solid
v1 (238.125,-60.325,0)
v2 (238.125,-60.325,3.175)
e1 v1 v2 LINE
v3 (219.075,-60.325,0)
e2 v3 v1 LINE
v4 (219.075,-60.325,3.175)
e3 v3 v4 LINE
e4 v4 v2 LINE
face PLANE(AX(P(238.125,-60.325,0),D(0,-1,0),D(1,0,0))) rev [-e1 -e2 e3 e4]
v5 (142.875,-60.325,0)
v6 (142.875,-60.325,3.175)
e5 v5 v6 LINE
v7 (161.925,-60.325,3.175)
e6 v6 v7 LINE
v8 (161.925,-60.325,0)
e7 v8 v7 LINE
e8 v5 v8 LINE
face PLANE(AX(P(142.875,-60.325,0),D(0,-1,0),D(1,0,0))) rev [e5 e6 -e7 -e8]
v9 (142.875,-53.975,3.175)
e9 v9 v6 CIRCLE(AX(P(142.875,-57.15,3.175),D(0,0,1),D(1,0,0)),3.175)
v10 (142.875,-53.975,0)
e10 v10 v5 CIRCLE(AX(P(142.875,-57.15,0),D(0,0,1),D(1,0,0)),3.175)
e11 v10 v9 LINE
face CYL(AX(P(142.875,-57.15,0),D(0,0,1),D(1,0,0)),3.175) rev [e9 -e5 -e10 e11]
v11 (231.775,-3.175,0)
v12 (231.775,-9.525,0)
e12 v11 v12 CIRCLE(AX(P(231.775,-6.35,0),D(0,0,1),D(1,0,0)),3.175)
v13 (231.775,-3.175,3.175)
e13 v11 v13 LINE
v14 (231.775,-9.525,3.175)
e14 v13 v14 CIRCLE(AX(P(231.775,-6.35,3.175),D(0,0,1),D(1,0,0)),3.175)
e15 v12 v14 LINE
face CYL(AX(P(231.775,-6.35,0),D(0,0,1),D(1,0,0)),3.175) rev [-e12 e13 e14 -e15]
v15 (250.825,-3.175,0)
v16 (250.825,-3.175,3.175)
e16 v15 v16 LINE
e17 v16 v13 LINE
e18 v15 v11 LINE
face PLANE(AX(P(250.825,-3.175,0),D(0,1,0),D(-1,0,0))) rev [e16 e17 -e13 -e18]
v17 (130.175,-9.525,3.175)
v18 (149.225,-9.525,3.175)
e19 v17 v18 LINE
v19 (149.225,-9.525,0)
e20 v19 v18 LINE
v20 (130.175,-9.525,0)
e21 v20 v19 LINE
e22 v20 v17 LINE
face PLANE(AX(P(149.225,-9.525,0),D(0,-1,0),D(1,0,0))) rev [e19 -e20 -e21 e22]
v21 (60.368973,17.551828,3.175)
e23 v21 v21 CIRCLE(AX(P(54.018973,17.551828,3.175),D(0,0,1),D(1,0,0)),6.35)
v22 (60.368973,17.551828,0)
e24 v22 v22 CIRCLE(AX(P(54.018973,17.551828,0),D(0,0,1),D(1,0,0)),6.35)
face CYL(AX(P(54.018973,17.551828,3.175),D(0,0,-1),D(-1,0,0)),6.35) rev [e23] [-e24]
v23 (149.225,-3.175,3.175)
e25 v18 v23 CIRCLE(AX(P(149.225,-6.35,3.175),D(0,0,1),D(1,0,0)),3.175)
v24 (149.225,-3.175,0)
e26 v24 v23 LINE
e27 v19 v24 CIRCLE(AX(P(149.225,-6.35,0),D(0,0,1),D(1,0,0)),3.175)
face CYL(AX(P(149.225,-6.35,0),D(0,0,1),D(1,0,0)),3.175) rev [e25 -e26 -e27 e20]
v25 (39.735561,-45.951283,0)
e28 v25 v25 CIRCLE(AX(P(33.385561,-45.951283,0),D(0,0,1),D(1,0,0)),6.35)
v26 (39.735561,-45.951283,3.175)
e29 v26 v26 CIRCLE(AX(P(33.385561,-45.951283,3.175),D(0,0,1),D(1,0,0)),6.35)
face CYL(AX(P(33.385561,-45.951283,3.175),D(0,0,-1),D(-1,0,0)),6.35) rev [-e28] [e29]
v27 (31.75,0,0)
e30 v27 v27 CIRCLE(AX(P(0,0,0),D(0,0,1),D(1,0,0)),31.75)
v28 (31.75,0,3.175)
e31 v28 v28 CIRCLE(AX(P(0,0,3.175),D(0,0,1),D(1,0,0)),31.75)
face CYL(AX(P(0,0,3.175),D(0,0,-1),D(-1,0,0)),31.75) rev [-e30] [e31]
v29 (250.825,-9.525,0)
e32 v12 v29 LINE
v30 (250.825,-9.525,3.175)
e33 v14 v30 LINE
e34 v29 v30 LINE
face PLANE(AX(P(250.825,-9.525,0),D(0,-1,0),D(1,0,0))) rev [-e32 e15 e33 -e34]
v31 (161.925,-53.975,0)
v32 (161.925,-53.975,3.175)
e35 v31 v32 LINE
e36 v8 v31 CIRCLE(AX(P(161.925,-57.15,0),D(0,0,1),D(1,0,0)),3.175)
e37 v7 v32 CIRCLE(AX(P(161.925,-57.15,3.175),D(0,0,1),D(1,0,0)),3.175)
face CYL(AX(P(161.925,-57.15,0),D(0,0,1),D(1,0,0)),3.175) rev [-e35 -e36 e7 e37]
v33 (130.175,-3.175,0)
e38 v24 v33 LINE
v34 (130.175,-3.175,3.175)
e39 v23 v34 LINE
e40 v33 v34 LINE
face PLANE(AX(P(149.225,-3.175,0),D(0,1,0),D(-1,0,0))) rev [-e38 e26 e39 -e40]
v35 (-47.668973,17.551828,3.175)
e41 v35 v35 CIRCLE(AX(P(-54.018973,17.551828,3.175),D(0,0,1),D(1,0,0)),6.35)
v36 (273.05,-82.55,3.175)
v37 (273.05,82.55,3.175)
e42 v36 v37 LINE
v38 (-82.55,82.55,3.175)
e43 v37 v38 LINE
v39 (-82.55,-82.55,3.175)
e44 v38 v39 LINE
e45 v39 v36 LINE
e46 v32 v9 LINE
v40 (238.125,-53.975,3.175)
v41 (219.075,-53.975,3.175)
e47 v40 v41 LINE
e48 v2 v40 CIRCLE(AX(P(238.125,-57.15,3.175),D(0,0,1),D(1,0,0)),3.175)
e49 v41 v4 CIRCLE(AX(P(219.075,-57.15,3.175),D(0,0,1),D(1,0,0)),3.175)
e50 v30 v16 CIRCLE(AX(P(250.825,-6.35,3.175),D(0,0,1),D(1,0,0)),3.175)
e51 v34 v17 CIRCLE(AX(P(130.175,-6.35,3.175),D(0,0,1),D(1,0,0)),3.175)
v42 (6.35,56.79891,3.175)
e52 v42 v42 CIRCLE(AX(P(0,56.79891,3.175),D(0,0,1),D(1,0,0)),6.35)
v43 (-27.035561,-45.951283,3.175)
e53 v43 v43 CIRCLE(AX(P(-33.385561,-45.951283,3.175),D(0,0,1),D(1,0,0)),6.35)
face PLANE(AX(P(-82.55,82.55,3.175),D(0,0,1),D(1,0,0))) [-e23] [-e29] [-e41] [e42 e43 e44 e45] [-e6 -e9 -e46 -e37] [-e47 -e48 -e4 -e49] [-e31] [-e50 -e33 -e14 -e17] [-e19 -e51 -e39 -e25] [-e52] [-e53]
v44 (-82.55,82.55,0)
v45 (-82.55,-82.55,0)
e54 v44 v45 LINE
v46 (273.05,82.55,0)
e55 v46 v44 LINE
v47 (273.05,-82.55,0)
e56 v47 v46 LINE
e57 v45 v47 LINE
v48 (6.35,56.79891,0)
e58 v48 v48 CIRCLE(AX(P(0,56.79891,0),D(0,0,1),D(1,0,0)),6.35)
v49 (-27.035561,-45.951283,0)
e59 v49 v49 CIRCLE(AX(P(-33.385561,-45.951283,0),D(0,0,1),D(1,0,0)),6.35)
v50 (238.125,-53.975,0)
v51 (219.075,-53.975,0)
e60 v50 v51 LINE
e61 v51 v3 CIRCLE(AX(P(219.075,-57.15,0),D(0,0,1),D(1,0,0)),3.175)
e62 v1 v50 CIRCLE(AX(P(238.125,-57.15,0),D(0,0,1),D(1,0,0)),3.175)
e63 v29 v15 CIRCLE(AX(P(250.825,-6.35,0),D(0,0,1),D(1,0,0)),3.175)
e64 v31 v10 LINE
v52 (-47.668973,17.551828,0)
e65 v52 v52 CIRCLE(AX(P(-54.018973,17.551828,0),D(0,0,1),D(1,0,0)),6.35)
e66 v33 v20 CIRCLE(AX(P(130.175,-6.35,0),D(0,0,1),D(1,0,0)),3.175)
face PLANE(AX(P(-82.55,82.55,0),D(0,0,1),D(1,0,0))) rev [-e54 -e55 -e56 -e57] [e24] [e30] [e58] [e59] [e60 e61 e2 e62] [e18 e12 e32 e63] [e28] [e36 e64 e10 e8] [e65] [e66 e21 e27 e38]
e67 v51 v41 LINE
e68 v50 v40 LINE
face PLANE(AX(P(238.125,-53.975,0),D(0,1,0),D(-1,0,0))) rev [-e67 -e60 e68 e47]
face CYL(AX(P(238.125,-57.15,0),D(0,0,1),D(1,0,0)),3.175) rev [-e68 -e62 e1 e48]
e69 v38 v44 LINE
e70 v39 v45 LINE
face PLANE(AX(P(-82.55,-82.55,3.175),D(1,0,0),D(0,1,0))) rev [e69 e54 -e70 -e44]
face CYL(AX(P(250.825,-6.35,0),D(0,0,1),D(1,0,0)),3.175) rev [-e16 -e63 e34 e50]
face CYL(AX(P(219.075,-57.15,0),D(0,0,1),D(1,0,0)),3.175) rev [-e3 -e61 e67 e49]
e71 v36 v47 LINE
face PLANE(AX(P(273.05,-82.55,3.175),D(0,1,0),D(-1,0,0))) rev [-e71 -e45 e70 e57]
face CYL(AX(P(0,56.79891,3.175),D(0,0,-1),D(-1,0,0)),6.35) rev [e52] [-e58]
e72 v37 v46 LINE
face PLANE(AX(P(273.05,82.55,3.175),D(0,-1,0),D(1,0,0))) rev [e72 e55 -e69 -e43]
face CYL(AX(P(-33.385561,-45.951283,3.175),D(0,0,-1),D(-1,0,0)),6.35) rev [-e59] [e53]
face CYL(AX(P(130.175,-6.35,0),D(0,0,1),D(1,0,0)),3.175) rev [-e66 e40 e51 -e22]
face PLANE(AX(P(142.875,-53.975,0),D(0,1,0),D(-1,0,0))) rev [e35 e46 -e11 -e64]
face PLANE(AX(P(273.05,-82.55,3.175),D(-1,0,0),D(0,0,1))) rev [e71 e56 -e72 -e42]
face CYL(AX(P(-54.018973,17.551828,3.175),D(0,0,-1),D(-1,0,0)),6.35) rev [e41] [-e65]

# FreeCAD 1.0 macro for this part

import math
import FreeCAD as App
import Part
import Sketcher

V = App.Vector
Q = App.Units.Quantity

doc = App.newDocument("Part")
body = doc.addObject("PartDesign::Body", "Body")

sketch1 = body.newObject("Sketcher::SketchObject", "Sketch")
sketch1.AttachmentSupport = (doc.getObject("XY_Plane"), [""])
sketch1.MapMode = "FlatFace"
sketch1.addGeometry([
    Part.LineSegment(V(-82.55, 82.55, 0), V(-82.55, -82.55, 0)),
    Part.LineSegment(V(-82.55, -82.55, 0), V(273.05, -82.55, 0)),
    Part.LineSegment(V(273.05, -82.55, 0), V(273.05, 82.55, 0)),
    Part.LineSegment(V(273.05, 82.55, 0), V(-82.55, 82.55, 0)),
    Part.Circle(V(-33.385561, -45.951283, 0), V(0, 0, 1), 6.35),
    Part.Circle(V(33.385561, -45.951283, 0), V(0, 0, 1), 6.35),
    Part.Circle(V(0, 0, 0), V(0, 0, 1), 31.75),
    Part.Circle(V(-54.018973, 17.551828, 0), V(0, 0, 1), 6.35),
    Part.Circle(V(54.018973, 17.551828, 0), V(0, 0, 1), 6.35),
    Part.Circle(V(0, 56.79891, 0), V(0, 0, 1), 6.35),
], False)
sketch1.addConstraint([
    Sketcher.Constraint("Coincident", 0, 2, 1, 1),
    Sketcher.Constraint("Coincident", 1, 2, 2, 1),
    Sketcher.Constraint("Coincident", 2, 2, 3, 1),
    Sketcher.Constraint("Coincident", 3, 2, 0, 1),
    Sketcher.Constraint("Vertical", 0),
    Sketcher.Constraint("Horizontal", 1),
    Sketcher.Constraint("Vertical", 2),
    Sketcher.Constraint("Horizontal", 3),
    Sketcher.Constraint("Coincident", 6, 3, -1, 1),
    Sketcher.Constraint("Equal", 4, 5),
    Sketcher.Constraint("Equal", 5, 7),
    Sketcher.Constraint("Equal", 7, 8),
    Sketcher.Constraint("Equal", 8, 9),
    Sketcher.Constraint("Symmetric", 4, 3, 5, 3, -2),
    Sketcher.Constraint("Symmetric", 7, 3, 8, 3, -2),
    Sketcher.Constraint("PointOnObject", 9, 3, -2),
    Sketcher.Constraint("Diameter", 4, Q("0.5 in")),
    Sketcher.Constraint("Diameter", 6, Q("2.5 in")),
    Sketcher.Constraint("DistanceX", 1, 1, 1, 2, Q("14 in")),
    Sketcher.Constraint("DistanceY", 0, 2, 0, 1, Q("6.5 in")),
    Sketcher.Constraint("DistanceX", 0, 2, -1, 1, Q("3.25 in")),
    Sketcher.Constraint("DistanceY", 0, 2, -1, 1, Q("3.25 in")),
    Sketcher.Constraint("DistanceX", 4, 3, -1, 1, Q("33.385561 mm")),
    Sketcher.Constraint("DistanceY", -1, 1, 7, 3, Q("17.551828 mm")),
    Sketcher.Constraint("DistanceY", -1, 1, 9, 3, Q("56.79891 mm")),
    Sketcher.Constraint("DistanceX", 7, 3, 4, 3, Q("20.633412 mm")),
    Sketcher.Constraint("DistanceY", 4, 3, 7, 3, Q("63.503111 mm")),
])
pad1 = body.newObject("PartDesign::Pad", "Pad")
pad1.Profile = sketch1
pad1.Length = Q("0.125 in")

sketch2 = body.newObject("Sketcher::SketchObject", "Sketch001")
sketch2.AttachmentSupport = (doc.getObject("XY_Plane"), [""])
sketch2.MapMode = "FlatFace"
sketch2.AttachmentOffset = App.Placement(V(0, 0, 0.125 * 25.4), App.Rotation())
sketch2.addGeometry([
    Part.LineSegment(V(130.175, -9.525, 0), V(149.225, -9.525, 0)),
    Part.ArcOfCircle(Part.Circle(V(149.225, -6.35, 0), V(0, 0, 1), 3.175), math.radians(-90), math.radians(90)),
    Part.LineSegment(V(149.225, -3.175, 0), V(130.175, -3.175, 0)),
    Part.ArcOfCircle(Part.Circle(V(130.175, -6.35, 0), V(0, 0, 1), 3.175), math.radians(90), math.radians(270)),
    Part.LineSegment(V(231.775, -9.525, 0), V(250.825, -9.525, 0)),
    Part.ArcOfCircle(Part.Circle(V(250.825, -6.35, 0), V(0, 0, 1), 3.175), math.radians(-90), math.radians(90)),
    Part.LineSegment(V(250.825, -3.175, 0), V(231.775, -3.175, 0)),
    Part.ArcOfCircle(Part.Circle(V(231.775, -6.35, 0), V(0, 0, 1), 3.175), math.radians(90), math.radians(270)),
    Part.LineSegment(V(219.075, -60.325, 0), V(238.125, -60.325, 0)),
    Part.ArcOfCircle(Part.Circle(V(238.125, -57.15, 0), V(0, 0, 1), 3.175), math.radians(-90), math.radians(90)),
    Part.LineSegment(V(238.125, -53.975, 0), V(219.075, -53.975, 0)),
    Part.ArcOfCircle(Part.Circle(V(219.075, -57.15, 0), V(0, 0, 1), 3.175), math.radians(90), math.radians(270)),
    Part.LineSegment(V(161.925, -53.975, 0), V(142.875, -53.975, 0)),
    Part.ArcOfCircle(Part.Circle(V(142.875, -57.15, 0), V(0, 0, 1), 3.175), math.radians(90), math.radians(270)),
    Part.LineSegment(V(142.875, -60.325, 0), V(161.925, -60.325, 0)),
    Part.ArcOfCircle(Part.Circle(V(161.925, -57.15, 0), V(0, 0, 1), 3.175), math.radians(-90), math.radians(90)),
], False)
sketch2.addConstraint([
    Sketcher.Constraint("Tangent", 0, 2, 1, 1),
    Sketcher.Constraint("Tangent", 1, 2, 2, 1),
    Sketcher.Constraint("Tangent", 2, 2, 3, 1),
    Sketcher.Constraint("Tangent", 3, 2, 0, 1),
    Sketcher.Constraint("Tangent", 4, 2, 5, 1),
    Sketcher.Constraint("Tangent", 5, 2, 6, 1),
    Sketcher.Constraint("Tangent", 6, 2, 7, 1),
    Sketcher.Constraint("Tangent", 7, 2, 4, 1),
    Sketcher.Constraint("Tangent", 8, 2, 9, 1),
    Sketcher.Constraint("Tangent", 9, 2, 10, 1),
    Sketcher.Constraint("Tangent", 10, 2, 11, 1),
    Sketcher.Constraint("Tangent", 11, 2, 8, 1),
    Sketcher.Constraint("Tangent", 12, 2, 13, 1),
    Sketcher.Constraint("Tangent", 13, 2, 14, 1),
    Sketcher.Constraint("Tangent", 14, 2, 15, 1),
    Sketcher.Constraint("Tangent", 15, 2, 12, 1),
    Sketcher.Constraint("Horizontal", 0),
    Sketcher.Constraint("Horizontal", 2),
    Sketcher.Constraint("Horizontal", 4),
    Sketcher.Constraint("Horizontal", 6),
    Sketcher.Constraint("Horizontal", 8),
    Sketcher.Constraint("Horizontal", 10),
    Sketcher.Constraint("Horizontal", 12),
    Sketcher.Constraint("Horizontal", 14),
    Sketcher.Constraint("Equal", 3, 5),
    Sketcher.Constraint("Equal", 7, 9),
    Sketcher.Constraint("Equal", 11, 13),
    Sketcher.Constraint("Horizontal", 3, 3, 5, 3),
    Sketcher.Constraint("Horizontal", 11, 3, 13, 3),
    Sketcher.Constraint("Equal", 2, 4),
    Sketcher.Constraint("Equal", 6, 8),
    Sketcher.Constraint("Equal", 10, 12),
    Sketcher.Constraint("Radius", 1, Q("0.125 in")),
    Sketcher.Constraint("DistanceX", 1, 3, 5, 3, Q("4 in")),
    Sketcher.Constraint("DistanceY", 9, 3, 7, 3, Q("2 in")),
    Sketcher.Constraint("DistanceX", 13, 3, 11, 3, Q("3 in")),
    Sketcher.Constraint("DistanceX", 0, 1, 0, 2, Q("0.75 in")),
    Sketcher.Constraint("DistanceX", 9, 3, 5, 3, Q("0.5 in")),
    Sketcher.Constraint("DistanceY", 1, 3, -1, 1, Q("0.25 in")),
    Sketcher.Constraint("DistanceX", -1, 1, 1, 3, Q("5.875 in")),
])
pocket1 = body.newObject("PartDesign::Pocket", "Pocket")
pocket1.Profile = sketch2
pocket1.Type = "ThroughAll"

doc.recompute()
